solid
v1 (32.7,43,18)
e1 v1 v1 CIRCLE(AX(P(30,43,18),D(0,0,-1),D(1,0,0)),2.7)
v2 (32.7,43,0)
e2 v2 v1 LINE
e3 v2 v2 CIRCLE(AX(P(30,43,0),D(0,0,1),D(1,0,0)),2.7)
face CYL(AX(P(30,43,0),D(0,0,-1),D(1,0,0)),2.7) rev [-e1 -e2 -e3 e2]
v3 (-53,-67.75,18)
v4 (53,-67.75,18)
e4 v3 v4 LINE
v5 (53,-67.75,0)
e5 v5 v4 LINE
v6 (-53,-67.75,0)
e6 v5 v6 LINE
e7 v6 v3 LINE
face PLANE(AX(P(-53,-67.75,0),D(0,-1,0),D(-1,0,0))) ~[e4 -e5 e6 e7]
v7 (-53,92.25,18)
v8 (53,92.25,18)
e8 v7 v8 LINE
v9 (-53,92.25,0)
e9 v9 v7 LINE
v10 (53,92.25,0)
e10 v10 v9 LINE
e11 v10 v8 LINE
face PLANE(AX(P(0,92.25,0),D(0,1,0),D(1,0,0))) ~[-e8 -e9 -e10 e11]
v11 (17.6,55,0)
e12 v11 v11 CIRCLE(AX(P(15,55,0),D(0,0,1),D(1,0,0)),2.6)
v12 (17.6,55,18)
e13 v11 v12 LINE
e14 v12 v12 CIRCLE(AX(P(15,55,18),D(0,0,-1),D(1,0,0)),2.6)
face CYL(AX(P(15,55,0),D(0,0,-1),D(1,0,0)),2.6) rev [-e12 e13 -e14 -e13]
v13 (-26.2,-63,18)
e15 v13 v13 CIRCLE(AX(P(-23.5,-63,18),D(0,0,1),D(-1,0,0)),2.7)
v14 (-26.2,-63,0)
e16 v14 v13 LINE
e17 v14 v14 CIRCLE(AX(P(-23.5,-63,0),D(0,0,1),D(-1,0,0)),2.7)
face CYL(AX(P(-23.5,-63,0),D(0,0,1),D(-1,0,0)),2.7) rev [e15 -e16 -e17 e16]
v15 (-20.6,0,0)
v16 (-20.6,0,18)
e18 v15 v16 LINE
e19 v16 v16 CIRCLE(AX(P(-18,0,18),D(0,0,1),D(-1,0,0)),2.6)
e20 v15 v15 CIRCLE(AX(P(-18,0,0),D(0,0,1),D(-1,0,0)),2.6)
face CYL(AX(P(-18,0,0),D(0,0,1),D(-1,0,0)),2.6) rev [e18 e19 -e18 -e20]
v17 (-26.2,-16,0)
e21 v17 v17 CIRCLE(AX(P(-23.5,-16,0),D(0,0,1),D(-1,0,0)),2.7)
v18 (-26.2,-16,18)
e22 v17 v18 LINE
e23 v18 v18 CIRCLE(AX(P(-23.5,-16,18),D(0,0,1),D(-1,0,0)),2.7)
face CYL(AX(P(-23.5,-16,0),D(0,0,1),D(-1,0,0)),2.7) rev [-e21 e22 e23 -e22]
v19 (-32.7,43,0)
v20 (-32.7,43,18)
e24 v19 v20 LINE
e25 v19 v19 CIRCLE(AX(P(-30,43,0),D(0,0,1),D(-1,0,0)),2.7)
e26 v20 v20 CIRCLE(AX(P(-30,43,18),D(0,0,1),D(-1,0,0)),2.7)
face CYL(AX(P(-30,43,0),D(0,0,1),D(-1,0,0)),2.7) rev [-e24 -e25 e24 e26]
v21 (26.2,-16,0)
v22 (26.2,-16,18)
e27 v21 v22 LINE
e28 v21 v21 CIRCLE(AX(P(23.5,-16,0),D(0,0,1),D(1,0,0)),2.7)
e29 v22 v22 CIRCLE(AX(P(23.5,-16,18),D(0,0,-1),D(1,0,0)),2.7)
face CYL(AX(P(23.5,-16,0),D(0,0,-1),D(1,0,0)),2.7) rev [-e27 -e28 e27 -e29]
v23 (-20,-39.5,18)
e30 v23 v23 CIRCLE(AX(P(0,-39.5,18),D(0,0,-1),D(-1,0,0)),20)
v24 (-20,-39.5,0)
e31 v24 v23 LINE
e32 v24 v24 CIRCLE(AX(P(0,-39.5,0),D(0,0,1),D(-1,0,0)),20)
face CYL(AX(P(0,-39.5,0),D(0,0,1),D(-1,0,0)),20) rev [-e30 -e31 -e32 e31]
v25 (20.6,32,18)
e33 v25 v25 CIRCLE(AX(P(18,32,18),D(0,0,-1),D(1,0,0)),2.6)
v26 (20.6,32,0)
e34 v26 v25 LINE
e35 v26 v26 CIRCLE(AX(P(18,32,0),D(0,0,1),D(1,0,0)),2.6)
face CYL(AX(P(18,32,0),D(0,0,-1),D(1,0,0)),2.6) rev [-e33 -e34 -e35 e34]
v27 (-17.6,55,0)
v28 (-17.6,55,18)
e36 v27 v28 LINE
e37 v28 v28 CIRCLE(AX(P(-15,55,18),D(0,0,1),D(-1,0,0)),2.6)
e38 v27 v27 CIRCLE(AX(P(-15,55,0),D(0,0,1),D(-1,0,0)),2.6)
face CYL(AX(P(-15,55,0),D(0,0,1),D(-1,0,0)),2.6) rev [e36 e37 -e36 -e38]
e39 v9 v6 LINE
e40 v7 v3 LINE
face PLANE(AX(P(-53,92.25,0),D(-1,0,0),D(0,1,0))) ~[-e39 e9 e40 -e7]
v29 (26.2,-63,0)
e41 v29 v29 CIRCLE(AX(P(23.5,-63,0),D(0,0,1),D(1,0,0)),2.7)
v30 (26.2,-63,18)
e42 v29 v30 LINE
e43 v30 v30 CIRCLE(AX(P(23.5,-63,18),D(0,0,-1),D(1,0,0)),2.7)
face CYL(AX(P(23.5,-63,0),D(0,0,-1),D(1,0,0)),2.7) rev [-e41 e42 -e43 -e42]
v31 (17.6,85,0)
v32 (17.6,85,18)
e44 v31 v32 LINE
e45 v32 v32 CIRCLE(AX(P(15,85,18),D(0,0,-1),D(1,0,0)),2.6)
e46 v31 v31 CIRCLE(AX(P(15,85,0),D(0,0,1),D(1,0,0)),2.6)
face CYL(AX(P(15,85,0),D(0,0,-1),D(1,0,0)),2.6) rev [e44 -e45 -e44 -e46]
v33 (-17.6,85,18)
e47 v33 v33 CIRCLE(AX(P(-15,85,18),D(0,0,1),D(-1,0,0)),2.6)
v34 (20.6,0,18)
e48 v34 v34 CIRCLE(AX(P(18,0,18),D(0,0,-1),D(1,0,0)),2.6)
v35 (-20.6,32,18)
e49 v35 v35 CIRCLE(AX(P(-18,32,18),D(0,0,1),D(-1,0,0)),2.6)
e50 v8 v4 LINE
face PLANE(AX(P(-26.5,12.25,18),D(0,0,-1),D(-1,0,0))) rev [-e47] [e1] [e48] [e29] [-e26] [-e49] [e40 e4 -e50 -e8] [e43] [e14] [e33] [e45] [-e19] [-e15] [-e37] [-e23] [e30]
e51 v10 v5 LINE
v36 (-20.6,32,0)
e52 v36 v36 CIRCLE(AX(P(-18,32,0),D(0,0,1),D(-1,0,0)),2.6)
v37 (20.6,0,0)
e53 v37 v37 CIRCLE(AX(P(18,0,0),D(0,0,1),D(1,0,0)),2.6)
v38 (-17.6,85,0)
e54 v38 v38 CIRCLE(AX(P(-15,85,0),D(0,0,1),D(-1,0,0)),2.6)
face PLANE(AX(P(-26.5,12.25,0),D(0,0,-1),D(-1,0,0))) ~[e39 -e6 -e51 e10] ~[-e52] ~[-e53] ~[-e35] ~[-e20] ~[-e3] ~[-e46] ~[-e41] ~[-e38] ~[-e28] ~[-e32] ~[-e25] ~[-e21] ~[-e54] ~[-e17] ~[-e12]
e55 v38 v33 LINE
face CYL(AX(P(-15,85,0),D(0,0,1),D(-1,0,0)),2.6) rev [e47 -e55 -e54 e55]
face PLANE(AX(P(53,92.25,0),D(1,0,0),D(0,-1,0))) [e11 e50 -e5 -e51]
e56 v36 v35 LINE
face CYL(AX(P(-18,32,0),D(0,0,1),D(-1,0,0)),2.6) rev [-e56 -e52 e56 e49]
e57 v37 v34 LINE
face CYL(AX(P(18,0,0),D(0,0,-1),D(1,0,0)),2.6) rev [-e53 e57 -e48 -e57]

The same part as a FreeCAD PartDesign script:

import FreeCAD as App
import Part
import Sketcher

doc = App.newDocument("Part")
body = doc.addObject("PartDesign::Body", "Body")

sketch1 = doc.addObject("Sketcher::SketchObject", "Sketch")
body.addObject(sketch1)
sketch1.AttachmentSupport = (doc.XY_Plane, [""])
sketch1.MapMode = "FlatFace"
sketch1.addGeometry(Part.LineSegment(App.Vector(53, 92, 0), App.Vector(0, 92, 0)), False)
sketch1.addGeometry(Part.LineSegment(App.Vector(0, 92, 0), App.Vector(0, -68, 0)), False)
sketch1.addGeometry(Part.LineSegment(App.Vector(0, -68, 0), App.Vector(53, -68, 0)), False)
sketch1.addGeometry(Part.LineSegment(App.Vector(53, -68, 0), App.Vector(53, 92, 0)), False)
sketch1.addConstraint(Sketcher.Constraint("Coincident", 0, 2, 1, 1))
sketch1.addConstraint(Sketcher.Constraint("Coincident", 1, 2, 2, 1))
sketch1.addConstraint(Sketcher.Constraint("Coincident", 2, 2, 3, 1))
sketch1.addConstraint(Sketcher.Constraint("Coincident", 3, 2, 0, 1))
sketch1.addConstraint(Sketcher.Constraint("Horizontal", 0))
sketch1.addConstraint(Sketcher.Constraint("Vertical", 1))
sketch1.addConstraint(Sketcher.Constraint("Horizontal", 2))
sketch1.addConstraint(Sketcher.Constraint("Vertical", 3))
sketch1.addConstraint(Sketcher.Constraint("PointOnObject", 0, 2, -2))
sketch1.addConstraint(Sketcher.Constraint("DistanceX", 0, 2, 0, 1, 53.0))
sketch1.addConstraint(Sketcher.Constraint("DistanceY", 1, 2, 1, 1, 160.0))
sketch1.addConstraint(Sketcher.Constraint("DistanceY", -1, 1, 0, 2, 92.25))
pad1 = doc.addObject("PartDesign::Pad", "Pad")
body.addObject(pad1)
pad1.Profile = sketch1
pad1.Length = 18

sketch2 = doc.addObject("Sketcher::SketchObject", "Sketch001")
body.addObject(sketch2)
sketch2.AttachmentSupport = (doc.XY_Plane, [""])
sketch2.MapMode = "FlatFace"
sketch2.addGeometry(Part.Circle(App.Vector(18, 0, 0), App.Vector(0, 0, 1), 2.6), False)
sketch2.addGeometry(Part.Circle(App.Vector(18, 32, 0), App.Vector(0, 0, 1), 2.6), False)
sketch2.addConstraint(Sketcher.Constraint("Equal", 0, 1))
sketch2.addConstraint(Sketcher.Constraint("PointOnObject", 0, 3, -1))
sketch2.addConstraint(Sketcher.Constraint("Vertical", 0, 3, 1, 3))
sketch2.addConstraint(Sketcher.Constraint("Diameter", 0, 5.2))
sketch2.addConstraint(Sketcher.Constraint("DistanceX", -1, 1, 0, 3, 18.0))
sketch2.addConstraint(Sketcher.Constraint("DistanceY", -1, 1, 1, 3, 32.0))
pocket1 = doc.addObject("PartDesign::Pocket", "Pocket")
body.addObject(pocket1)
pocket1.Profile = sketch2
pocket1.Type = "ThroughAll"
pocket1.Midplane = True

sketch3 = doc.addObject("Sketcher::SketchObject", "Sketch002")
body.addObject(sketch3)
sketch3.AttachmentSupport = (doc.XY_Plane, [""])
sketch3.MapMode = "FlatFace"
sketch3.addGeometry(Part.Circle(App.Vector(15, 55, 0), App.Vector(0, 0, 1), 2.6), False)
sketch3.addGeometry(Part.Circle(App.Vector(15, 85, 0), App.Vector(0, 0, 1), 2.6), False)
sketch3.addConstraint(Sketcher.Constraint("Equal", 0, 1))
sketch3.addConstraint(Sketcher.Constraint("Vertical", 0, 3, 1, 3))
sketch3.addConstraint(Sketcher.Constraint("Diameter", 0, 5.2))
sketch3.addConstraint(Sketcher.Constraint("DistanceX", -1, 1, 0, 3, 15.0))
sketch3.addConstraint(Sketcher.Constraint("DistanceY", -1, 1, 0, 3, 55.0))
sketch3.addConstraint(Sketcher.Constraint("DistanceY", -1, 1, 1, 3, 85.0))
pocket2 = doc.addObject("PartDesign::Pocket", "Pocket001")
body.addObject(pocket2)
pocket2.Profile = sketch3
pocket2.Type = "ThroughAll"
pocket2.Midplane = True

sketch4 = doc.addObject("Sketcher::SketchObject", "Sketch003")
body.addObject(sketch4)
sketch4.AttachmentSupport = (doc.XY_Plane, [""])
sketch4.MapMode = "FlatFace"
sketch4.addGeometry(Part.Circle(App.Vector(0, -40, 0), App.Vector(0, 0, 1), 20), False)
sketch4.addConstraint(Sketcher.Constraint("PointOnObject", 0, 3, -2))
sketch4.addConstraint(Sketcher.Constraint("Diameter", 0, 40.0))
sketch4.addConstraint(Sketcher.Constraint("DistanceY", 0, 3, -1, 1, 39.5))
pocket3 = doc.addObject("PartDesign::Pocket", "Pocket002")
body.addObject(pocket3)
pocket3.Profile = sketch4
pocket3.Type = "ThroughAll"
pocket3.Midplane = True

sketch5 = doc.addObject("Sketcher::SketchObject", "Sketch004")
body.addObject(sketch5)
sketch5.AttachmentSupport = (doc.XY_Plane, [""])
sketch5.MapMode = "FlatFace"
sketch5.addGeometry(Part.Circle(App.Vector(23.5, -16, 0), App.Vector(0, 0, 1), 2.7), False)
sketch5.addGeometry(Part.Circle(App.Vector(23.5, -63, 0), App.Vector(0, 0, 1), 2.7), False)
sketch5.addConstraint(Sketcher.Constraint("Equal", 0, 1))
sketch5.addConstraint(Sketcher.Constraint("Vertical", 0, 3, 1, 3))
sketch5.addConstraint(Sketcher.Constraint("Diameter", 0, 5.4))
sketch5.addConstraint(Sketcher.Constraint("DistanceY", 0, 3, -1, 1, 16.0))
sketch5.addConstraint(Sketcher.Constraint("DistanceY", 1, 3, -1, 1, 63.0))
sketch5.addConstraint(Sketcher.Constraint("DistanceX", -1, 1, 0, 3, 23.5))
pocket4 = doc.addObject("PartDesign::Pocket", "Pocket003")
body.addObject(pocket4)
pocket4.Profile = sketch5
pocket4.Type = "ThroughAll"
pocket4.Midplane = True

sketch6 = doc.addObject("Sketcher::SketchObject", "Sketch005")
body.addObject(sketch6)
sketch6.AttachmentSupport = (doc.XY_Plane, [""])
sketch6.MapMode = "FlatFace"
sketch6.addGeometry(Part.Circle(App.Vector(30, 43, 0), App.Vector(0, 0, 1), 2.7), False)
sketch6.addConstraint(Sketcher.Constraint("Diameter", 0, 5.4))
sketch6.addConstraint(Sketcher.Constraint("DistanceX", -1, 1, 0, 3, 30.0))
sketch6.addConstraint(Sketcher.Constraint("DistanceY", -1, 1, 0, 3, 43.0))
pocket5 = doc.addObject("PartDesign::Pocket", "Pocket004")
body.addObject(pocket5)
pocket5.Profile = sketch6
pocket5.Type = "ThroughAll"
pocket5.Midplane = True
doc.recompute()

mirrored = doc.addObject("PartDesign::Mirrored", "Mirrored")
body.addObject(mirrored)
mirrored.Originals = [pad1, pocket1, pocket2, pocket3, pocket4, pocket5]
mirrored.MirrorPlane = (doc.YZ_Plane, [""])
body.Tip = mirrored

doc.recompute()
